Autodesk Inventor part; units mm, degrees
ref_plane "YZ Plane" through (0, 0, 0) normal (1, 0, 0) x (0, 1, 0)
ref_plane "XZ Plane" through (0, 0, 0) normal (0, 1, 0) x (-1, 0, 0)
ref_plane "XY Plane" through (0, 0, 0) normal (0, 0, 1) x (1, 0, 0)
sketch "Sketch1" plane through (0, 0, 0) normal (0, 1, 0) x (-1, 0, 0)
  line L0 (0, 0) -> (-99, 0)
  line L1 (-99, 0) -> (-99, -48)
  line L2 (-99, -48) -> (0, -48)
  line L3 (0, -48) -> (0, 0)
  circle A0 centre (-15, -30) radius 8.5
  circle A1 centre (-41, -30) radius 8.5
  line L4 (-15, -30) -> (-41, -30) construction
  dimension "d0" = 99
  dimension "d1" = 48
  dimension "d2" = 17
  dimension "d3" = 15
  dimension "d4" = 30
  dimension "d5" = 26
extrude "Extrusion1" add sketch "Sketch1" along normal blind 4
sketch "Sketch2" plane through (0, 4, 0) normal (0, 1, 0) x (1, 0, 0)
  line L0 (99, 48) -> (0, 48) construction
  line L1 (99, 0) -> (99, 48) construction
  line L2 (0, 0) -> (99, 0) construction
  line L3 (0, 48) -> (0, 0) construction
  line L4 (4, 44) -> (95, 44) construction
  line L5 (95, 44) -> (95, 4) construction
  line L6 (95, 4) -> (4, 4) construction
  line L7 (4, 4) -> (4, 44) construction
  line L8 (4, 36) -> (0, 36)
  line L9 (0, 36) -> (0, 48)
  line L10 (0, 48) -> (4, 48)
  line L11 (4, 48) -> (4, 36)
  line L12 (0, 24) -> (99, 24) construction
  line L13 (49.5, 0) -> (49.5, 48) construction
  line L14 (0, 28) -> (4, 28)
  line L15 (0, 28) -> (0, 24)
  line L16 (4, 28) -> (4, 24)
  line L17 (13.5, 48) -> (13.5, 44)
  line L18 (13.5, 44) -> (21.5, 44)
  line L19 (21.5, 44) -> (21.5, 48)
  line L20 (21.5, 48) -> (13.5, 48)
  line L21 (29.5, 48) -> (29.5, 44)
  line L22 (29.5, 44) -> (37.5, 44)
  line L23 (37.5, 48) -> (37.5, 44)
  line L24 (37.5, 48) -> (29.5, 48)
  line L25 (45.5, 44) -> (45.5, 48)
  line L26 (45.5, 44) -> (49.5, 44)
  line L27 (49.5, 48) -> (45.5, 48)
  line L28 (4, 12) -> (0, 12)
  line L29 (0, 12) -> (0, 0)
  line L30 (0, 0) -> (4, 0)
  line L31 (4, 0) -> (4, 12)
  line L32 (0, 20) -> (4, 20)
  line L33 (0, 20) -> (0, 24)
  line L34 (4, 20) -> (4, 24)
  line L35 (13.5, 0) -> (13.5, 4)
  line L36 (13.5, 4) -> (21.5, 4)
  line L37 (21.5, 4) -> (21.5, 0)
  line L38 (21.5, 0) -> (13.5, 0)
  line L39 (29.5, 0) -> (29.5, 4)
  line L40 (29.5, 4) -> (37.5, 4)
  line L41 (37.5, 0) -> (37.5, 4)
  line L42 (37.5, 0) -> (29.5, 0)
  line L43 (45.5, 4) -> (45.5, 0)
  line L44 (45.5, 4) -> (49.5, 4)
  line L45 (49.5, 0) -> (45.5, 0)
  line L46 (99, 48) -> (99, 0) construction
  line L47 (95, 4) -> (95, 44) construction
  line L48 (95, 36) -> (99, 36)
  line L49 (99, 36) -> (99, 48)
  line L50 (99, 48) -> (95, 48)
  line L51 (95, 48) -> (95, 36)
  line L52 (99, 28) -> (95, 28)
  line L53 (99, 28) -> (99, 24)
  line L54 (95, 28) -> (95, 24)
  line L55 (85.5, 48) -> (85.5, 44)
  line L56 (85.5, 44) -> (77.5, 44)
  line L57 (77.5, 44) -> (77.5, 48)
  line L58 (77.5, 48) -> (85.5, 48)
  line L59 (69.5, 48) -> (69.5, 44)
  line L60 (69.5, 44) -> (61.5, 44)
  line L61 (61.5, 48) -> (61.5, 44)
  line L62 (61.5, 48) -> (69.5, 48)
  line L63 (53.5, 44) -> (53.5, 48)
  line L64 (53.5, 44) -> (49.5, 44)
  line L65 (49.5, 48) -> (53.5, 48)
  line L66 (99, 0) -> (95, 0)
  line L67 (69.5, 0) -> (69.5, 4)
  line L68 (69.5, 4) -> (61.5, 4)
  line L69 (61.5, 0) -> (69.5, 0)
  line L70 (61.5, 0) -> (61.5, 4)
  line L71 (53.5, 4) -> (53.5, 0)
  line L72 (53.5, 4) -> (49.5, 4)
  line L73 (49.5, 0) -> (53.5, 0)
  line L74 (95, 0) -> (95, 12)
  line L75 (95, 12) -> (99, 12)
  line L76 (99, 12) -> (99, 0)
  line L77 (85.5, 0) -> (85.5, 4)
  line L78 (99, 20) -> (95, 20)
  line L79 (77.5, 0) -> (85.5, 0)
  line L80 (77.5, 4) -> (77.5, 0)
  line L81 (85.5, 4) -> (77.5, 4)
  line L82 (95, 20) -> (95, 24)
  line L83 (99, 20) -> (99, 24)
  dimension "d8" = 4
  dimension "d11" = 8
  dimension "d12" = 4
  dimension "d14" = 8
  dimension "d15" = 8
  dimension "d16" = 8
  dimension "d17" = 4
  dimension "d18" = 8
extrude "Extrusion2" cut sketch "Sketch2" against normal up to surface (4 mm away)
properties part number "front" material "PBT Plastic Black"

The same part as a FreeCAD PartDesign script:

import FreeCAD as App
import Part
import Sketcher
Q = App.Units.Quantity

doc = App.newDocument("Part")
params = doc.addObject("Spreadsheet::Sheet", "Params")
for row, (alias, value) in enumerate([
    ("sketch1_diameter", "17 mm"),
    ("sketch1_width", "99 mm"),
    ("sketch1_height", "48 mm"),
    ("pad1_length", "4 mm"),
    ("sketch2_width", "4 mm"),
    ("sketch2_width2", "8 mm"),
    ("sketch2_height", "12 mm"),
    ("pocket1_length", "4 mm"),
], start=1):
    params.set(f"A{row}", alias)
    params.set(f"B{row}", "=" + value)
    params.setAlias(f"B{row}", alias)

body = doc.addObject("PartDesign::Body", "Body")

# Sketch on XZ plane
sketch1 = body.newObject("Sketcher::SketchObject", "Sketch")
sketch1.AttachmentSupport = (doc.getObject("XZ_Plane"), [""])
sketch1.MapMode = "FlatFace"
sketch1.addGeometry([
    Part.LineSegment(App.Vector(0, -48, 0), App.Vector(0, 0, 0)),  # 0
    Part.LineSegment(App.Vector(0, 0, 0), App.Vector(99, 0, 0)),  # 1
    Part.LineSegment(App.Vector(99, 0, 0), App.Vector(99, -48, 0)),  # 2
    Part.LineSegment(App.Vector(99, -48, 0), App.Vector(0, -48, 0)),  # 3
    Part.Circle(App.Vector(41, -30, 0), App.Vector(0, 0, 1), 8),  # 4
    Part.Circle(App.Vector(15, -30, 0), App.Vector(0, 0, 1), 8),  # 5
], False)
sketch1.addConstraint([
    Sketcher.Constraint("Coincident", 0, 2, 1, 1),
    Sketcher.Constraint("Coincident", 1, 2, 2, 1),
    Sketcher.Constraint("Coincident", 2, 2, 3, 1),
    Sketcher.Constraint("Coincident", 3, 2, 0, 1),
    Sketcher.Constraint("Vertical", 0),
    Sketcher.Constraint("Horizontal", 1),
    Sketcher.Constraint("Vertical", 2),
    Sketcher.Constraint("Horizontal", 3),
    Sketcher.Constraint("Coincident", 0, 2, -1, 1),
    Sketcher.Constraint("Equal", 4, 5),
    Sketcher.Constraint("Horizontal", 4, 3, 5, 3),
    Sketcher.Constraint("Diameter", 4, Q("17 mm")),
    Sketcher.Constraint("DistanceX", 1, 1, 1, 2, Q("99 mm")),
    Sketcher.Constraint("DistanceY", 0, 1, 0, 2, Q("48 mm")),
    Sketcher.Constraint("DistanceY", 4, 3, -1, 1, Q("30 mm")),
    Sketcher.Constraint("DistanceX", -1, 1, 5, 3, Q("15 mm")),
    Sketcher.Constraint("DistanceX", 5, 3, 4, 3, Q("26 mm")),
])
sketch1.setExpression("Constraints[11]", "Params.sketch1_diameter")
sketch1.setExpression("Constraints[12]", "Params.sketch1_width")
sketch1.setExpression("Constraints[13]", "Params.sketch1_height")
pad1 = body.newObject("PartDesign::Pad", "Pad")
pad1.Profile = sketch1
pad1.setExpression("Length", "Params.pad1_length")
pad1.Reversed = True

# Sketch on XZ plane
sketch2 = body.newObject("Sketcher::SketchObject", "Sketch001")
sketch2.AttachmentSupport = (doc.getObject("XZ_Plane"), [""])
sketch2.MapMode = "FlatFace"
sketch2.AttachmentOffset = App.Placement(App.Vector(0, 0, -4), App.Rotation())
sketch2.addGeometry([
    Part.LineSegment(App.Vector(0, -36, 0), App.Vector(4, -36, 0)),  # 0
    Part.LineSegment(App.Vector(4, -36, 0), App.Vector(4, -48, 0)),  # 1
    Part.LineSegment(App.Vector(4, -48, 0), App.Vector(0, -48, 0)),  # 2
    Part.LineSegment(App.Vector(0, -48, 0), App.Vector(0, -36, 0)),  # 3
    Part.LineSegment(App.Vector(4, -28, 0), App.Vector(0, -28, 0)),  # 4
    Part.LineSegment(App.Vector(0, -28, 0), App.Vector(0, -20, 0)),  # 5
    Part.LineSegment(App.Vector(0, -20, 0), App.Vector(4, -20, 0)),  # 6
    Part.LineSegment(App.Vector(4, -20, 0), App.Vector(4, -28, 0)),  # 7
    Part.LineSegment(App.Vector(21.5, -48, 0), App.Vector(13.5, -48, 0)),  # 8
    Part.LineSegment(App.Vector(13.5, -48, 0), App.Vector(13.5, -44, 0)),  # 9
    Part.LineSegment(App.Vector(13.5, -44, 0), App.Vector(21.5, -44, 0)),  # 10
    Part.LineSegment(App.Vector(21.5, -44, 0), App.Vector(21.5, -48, 0)),  # 11
    Part.LineSegment(App.Vector(37.5, -48, 0), App.Vector(29.5, -48, 0)),  # 12
    Part.LineSegment(App.Vector(29.5, -48, 0), App.Vector(29.5, -44, 0)),  # 13
    Part.LineSegment(App.Vector(29.5, -44, 0), App.Vector(37.5, -44, 0)),  # 14
    Part.LineSegment(App.Vector(37.5, -44, 0), App.Vector(37.5, -48, 0)),  # 15
    Part.LineSegment(App.Vector(45.5, -48, 0), App.Vector(45.5, -44, 0)),  # 16
    Part.LineSegment(App.Vector(45.5, -44, 0), App.Vector(53.5, -44, 0)),  # 17
    Part.LineSegment(App.Vector(53.5, -44, 0), App.Vector(53.5, -48, 0)),  # 18
    Part.LineSegment(App.Vector(53.5, -48, 0), App.Vector(45.5, -48, 0)),  # 19
    Part.LineSegment(App.Vector(4, 0, 0), App.Vector(4, -12, 0)),  # 20
    Part.LineSegment(App.Vector(4, -12, 0), App.Vector(0, -12, 0)),  # 21
    Part.LineSegment(App.Vector(0, -12, 0), App.Vector(0, 0, 0)),  # 22
    Part.LineSegment(App.Vector(0, 0, 0), App.Vector(4, 0, 0)),  # 23
    Part.LineSegment(App.Vector(13.5, -4, 0), App.Vector(13.5, 0, 0)),  # 24
    Part.LineSegment(App.Vector(13.5, 0, 0), App.Vector(21.5, 0, 0)),  # 25
    Part.LineSegment(App.Vector(21.5, 0, 0), App.Vector(21.5, -4, 0)),  # 26
    Part.LineSegment(App.Vector(21.5, -4, 0), App.Vector(13.5, -4, 0)),  # 27
    Part.LineSegment(App.Vector(29.5, -4, 0), App.Vector(29.5, 0, 0)),  # 28
    Part.LineSegment(App.Vector(29.5, 0, 0), App.Vector(37.5, 0, 0)),  # 29
    Part.LineSegment(App.Vector(37.5, 0, 0), App.Vector(37.5, -4, 0)),  # 30
    Part.LineSegment(App.Vector(37.5, -4, 0), App.Vector(29.5, -4, 0)),  # 31
    Part.LineSegment(App.Vector(53.5, -4, 0), App.Vector(45.5, -4, 0)),  # 32
    Part.LineSegment(App.Vector(45.5, -4, 0), App.Vector(45.5, 0, 0)),  # 33
    Part.LineSegment(App.Vector(45.5, 0, 0), App.Vector(53.5, 0, 0)),  # 34
    Part.LineSegment(App.Vector(53.5, 0, 0), App.Vector(53.5, -4, 0)),  # 35
    Part.LineSegment(App.Vector(95, -48, 0), App.Vector(95, -36, 0)),  # 36
    Part.LineSegment(App.Vector(95, -36, 0), App.Vector(99, -36, 0)),  # 37
    Part.LineSegment(App.Vector(99, -36, 0), App.Vector(99, -48, 0)),  # 38
    Part.LineSegment(App.Vector(99, -48, 0), App.Vector(95, -48, 0)),  # 39
    Part.LineSegment(App.Vector(99, -20, 0), App.Vector(99, -28, 0)),  # 40
    Part.LineSegment(App.Vector(99, -28, 0), App.Vector(95, -28, 0)),  # 41
    Part.LineSegment(App.Vector(95, -28, 0), App.Vector(95, -20, 0)),  # 42
    Part.LineSegment(App.Vector(95, -20, 0), App.Vector(99, -20, 0)),  # 43
    Part.LineSegment(App.Vector(85.5, -44, 0), App.Vector(85.5, -48, 0)),  # 44
    Part.LineSegment(App.Vector(85.5, -48, 0), App.Vector(77.5, -48, 0)),  # 45
    Part.LineSegment(App.Vector(77.5, -48, 0), App.Vector(77.5, -44, 0)),  # 46
    Part.LineSegment(App.Vector(77.5, -44, 0), App.Vector(85.5, -44, 0)),  # 47
    Part.LineSegment(App.Vector(69.5, -44, 0), App.Vector(69.5, -48, 0)),  # 48
    Part.LineSegment(App.Vector(69.5, -48, 0), App.Vector(61.5, -48, 0)),  # 49
    Part.LineSegment(App.Vector(61.5, -48, 0), App.Vector(61.5, -44, 0)),  # 50
    Part.LineSegment(App.Vector(61.5, -44, 0), App.Vector(69.5, -44, 0)),  # 51
    Part.LineSegment(App.Vector(95, 0, 0), App.Vector(99, 0, 0)),  # 52
    Part.LineSegment(App.Vector(99, 0, 0), App.Vector(99, -12, 0)),  # 53
    Part.LineSegment(App.Vector(99, -12, 0), App.Vector(95, -12, 0)),  # 54
    Part.LineSegment(App.Vector(95, -12, 0), App.Vector(95, 0, 0)),  # 55
    Part.LineSegment(App.Vector(61.5, 0, 0), App.Vector(69.5, 0, 0)),  # 56
    Part.LineSegment(App.Vector(69.5, 0, 0), App.Vector(69.5, -4, 0)),  # 57
    Part.LineSegment(App.Vector(69.5, -4, 0), App.Vector(61.5, -4, 0)),  # 58
    Part.LineSegment(App.Vector(61.5, -4, 0), App.Vector(61.5, 0, 0)),  # 59
    Part.LineSegment(App.Vector(77.5, 0, 0), App.Vector(85.5, 0, 0)),  # 60
    Part.LineSegment(App.Vector(85.5, 0, 0), App.Vector(85.5, -4, 0)),  # 61
    Part.LineSegment(App.Vector(85.5, -4, 0), App.Vector(77.5, -4, 0)),  # 62
    Part.LineSegment(App.Vector(77.5, -4, 0), App.Vector(77.5, 0, 0)),  # 63
], False)
sketch2.addConstraint([
    Sketcher.Constraint("Coincident", 0, 2, 1, 1),
    Sketcher.Constraint("Coincident", 1, 2, 2, 1),
    Sketcher.Constraint("Coincident", 2, 2, 3, 1),
    Sketcher.Constraint("Coincident", 3, 2, 0, 1),
    Sketcher.Constraint("Coincident", 4, 2, 5, 1),
    Sketcher.Constraint("Coincident", 5, 2, 6, 1),
    Sketcher.Constraint("Coincident", 6, 2, 7, 1),
    Sketcher.Constraint("Coincident", 7, 2, 4, 1),
    Sketcher.Constraint("Coincident", 8, 2, 9, 1),
    Sketcher.Constraint("Coincident", 9, 2, 10, 1),
    Sketcher.Constraint("Coincident", 10, 2, 11, 1),
    Sketcher.Constraint("Coincident", 11, 2, 8, 1),
    Sketcher.Constraint("Coincident", 12, 2, 13, 1),
    Sketcher.Constraint("Coincident", 13, 2, 14, 1),
    Sketcher.Constraint("Coincident", 14, 2, 15, 1),
    Sketcher.Constraint("Coincident", 15, 2, 12, 1),
    Sketcher.Constraint("Coincident", 16, 2, 17, 1),
    Sketcher.Constraint("Coincident", 17, 2, 18, 1),
    Sketcher.Constraint("Coincident", 18, 2, 19, 1),
    Sketcher.Constraint("Coincident", 19, 2, 16, 1),
    Sketcher.Constraint("Coincident", 20, 2, 21, 1),
    Sketcher.Constraint("Coincident", 21, 2, 22, 1),
    Sketcher.Constraint("Coincident", 22, 2, 23, 1),
    Sketcher.Constraint("Coincident", 23, 2, 20, 1),
    Sketcher.Constraint("Coincident", 24, 2, 25, 1),
    Sketcher.Constraint("Coincident", 25, 2, 26, 1),
    Sketcher.Constraint("Coincident", 26, 2, 27, 1),
    Sketcher.Constraint("Coincident", 27, 2, 24, 1),
    Sketcher.Constraint("Coincident", 28, 2, 29, 1),
    Sketcher.Constraint("Coincident", 29, 2, 30, 1),
    Sketcher.Constraint("Coincident", 30, 2, 31, 1),
    Sketcher.Constraint("Coincident", 31, 2, 28, 1),
    Sketcher.Constraint("Coincident", 32, 2, 33, 1),
    Sketcher.Constraint("Coincident", 33, 2, 34, 1),
    Sketcher.Constraint("Coincident", 34, 2, 35, 1),
    Sketcher.Constraint("Coincident", 35, 2, 32, 1),
    Sketcher.Constraint("Coincident", 36, 2, 37, 1),
    Sketcher.Constraint("Coincident", 37, 2, 38, 1),
    Sketcher.Constraint("Coincident", 38, 2, 39, 1),
    Sketcher.Constraint("Coincident", 39, 2, 36, 1),
    Sketcher.Constraint("Coincident", 40, 2, 41, 1),
    Sketcher.Constraint("Coincident", 41, 2, 42, 1),
    Sketcher.Constraint("Coincident", 42, 2, 43, 1),
    Sketcher.Constraint("Coincident", 43, 2, 40, 1),
    Sketcher.Constraint("Coincident", 44, 2, 45, 1),
    Sketcher.Constraint("Coincident", 45, 2, 46, 1),
    Sketcher.Constraint("Coincident", 46, 2, 47, 1),
    Sketcher.Constraint("Coincident", 47, 2, 44, 1),
    Sketcher.Constraint("Coincident", 48, 2, 49, 1),
    Sketcher.Constraint("Coincident", 49, 2, 50, 1),
    Sketcher.Constraint("Coincident", 50, 2, 51, 1),
    Sketcher.Constraint("Coincident", 51, 2, 48, 1),
    Sketcher.Constraint("Coincident", 52, 2, 53, 1),
    Sketcher.Constraint("Coincident", 53, 2, 54, 1),
    Sketcher.Constraint("Coincident", 54, 2, 55, 1),
    Sketcher.Constraint("Coincident", 55, 2, 52, 1),
    Sketcher.Constraint("Coincident", 56, 2, 57, 1),
    Sketcher.Constraint("Coincident", 57, 2, 58, 1),
    Sketcher.Constraint("Coincident", 58, 2, 59, 1),
    Sketcher.Constraint("Coincident", 59, 2, 56, 1),
    Sketcher.Constraint("Coincident", 60, 2, 61, 1),
    Sketcher.Constraint("Coincident", 61, 2, 62, 1),
    Sketcher.Constraint("Coincident", 62, 2, 63, 1),
    Sketcher.Constraint("Coincident", 63, 2, 60, 1),
    Sketcher.Constraint("Horizontal", 0),
    Sketcher.Constraint("Vertical", 1),
    Sketcher.Constraint("Horizontal", 2),
    Sketcher.Constraint("Vertical", 3),
    Sketcher.Constraint("Horizontal", 4),
    Sketcher.Constraint("Vertical", 5),
    Sketcher.Constraint("Horizontal", 6),
    Sketcher.Constraint("Vertical", 7),
    Sketcher.Constraint("Horizontal", 8),
    Sketcher.Constraint("Vertical", 9),
    Sketcher.Constraint("Horizontal", 10),
    Sketcher.Constraint("Vertical", 11),
    Sketcher.Constraint("Horizontal", 12),
    Sketcher.Constraint("Vertical", 13),
    Sketcher.Constraint("Horizontal", 14),
    Sketcher.Constraint("Vertical", 15),
    Sketcher.Constraint("Vertical", 16),
    Sketcher.Constraint("Horizontal", 17),
    Sketcher.Constraint("Vertical", 18),
    Sketcher.Constraint("Horizontal", 19),
    Sketcher.Constraint("Vertical", 20),
    Sketcher.Constraint("Horizontal", 21),
    Sketcher.Constraint("Vertical", 22),
    Sketcher.Constraint("Horizontal", 23),
    Sketcher.Constraint("Vertical", 24),
    Sketcher.Constraint("Horizontal", 25),
    Sketcher.Constraint("Vertical", 26),
    Sketcher.Constraint("Horizontal", 27),
    Sketcher.Constraint("Vertical", 28),
    Sketcher.Constraint("Horizontal", 29),
    Sketcher.Constraint("Vertical", 30),
    Sketcher.Constraint("Horizontal", 31),
    Sketcher.Constraint("Horizontal", 32),
    Sketcher.Constraint("Vertical", 33),
    Sketcher.Constraint("Horizontal", 34),
    Sketcher.Constraint("Vertical", 35),
    Sketcher.Constraint("Vertical", 36),
    Sketcher.Constraint("Horizontal", 37),
    Sketcher.Constraint("Vertical", 38),
    Sketcher.Constraint("Horizontal", 39),
    Sketcher.Constraint("Vertical", 40),
    Sketcher.Constraint("Horizontal", 41),
    Sketcher.Constraint("Vertical", 42),
    Sketcher.Constraint("Horizontal", 43),
    Sketcher.Constraint("Vertical", 44),
    Sketcher.Constraint("Horizontal", 45),
    Sketcher.Constraint("Vertical", 46),
    Sketcher.Constraint("Horizontal", 47),
    Sketcher.Constraint("Vertical", 48),
    Sketcher.Constraint("Horizontal", 49),
    Sketcher.Constraint("Vertical", 50),
    Sketcher.Constraint("Horizontal", 51),
    Sketcher.Constraint("Horizontal", 52),
    Sketcher.Constraint("Vertical", 53),
    Sketcher.Constraint("Horizontal", 54),
    Sketcher.Constraint("Vertical", 55),
    Sketcher.Constraint("Horizontal", 56),
    Sketcher.Constraint("Vertical", 57),
    Sketcher.Constraint("Horizontal", 58),
    Sketcher.Constraint("Vertical", 59),
    Sketcher.Constraint("Horizontal", 60),
    Sketcher.Constraint("Vertical", 61),
    Sketcher.Constraint("Horizontal", 62),
    Sketcher.Constraint("Vertical", 63),
    Sketcher.Constraint("Coincident", 22, 2, -1, 1),
    Sketcher.Constraint("PointOnObject", 2, 2, -2),
    Sketcher.Constraint("PointOnObject", 4, 2, -2),
    Sketcher.Constraint("PointOnObject", 24, 2, -1),
    Sketcher.Constraint("PointOnObject", 28, 2, -1),
    Sketcher.Constraint("PointOnObject", 33, 2, -1),
    Sketcher.Constraint("PointOnObject", 52, 2, -1),
    Sketcher.Constraint("PointOnObject", 56, 2, -1),
    Sketcher.Constraint("PointOnObject", 60, 2, -1),
    Sketcher.Constraint("Horizontal", 2, 2, 8, 2),
    Sketcher.Constraint("Horizontal", 11, 2, 12, 2),
    Sketcher.Constraint("Horizontal", 10, 2, 13, 2),
    Sketcher.Constraint("Horizontal", 14, 2, 16, 2),
    Sketcher.Constraint("Horizontal", 15, 2, 18, 2),
    Sketcher.Constraint("Horizontal", 27, 2, 30, 2),
    Sketcher.Constraint("Horizontal", 31, 2, 32, 2),
    Sketcher.Constraint("Horizontal", 3, 2, 36, 2),
    Sketcher.Constraint("Horizontal", 19, 2, 38, 2),
    Sketcher.Constraint("Horizontal", 7, 2, 40, 2),
    Sketcher.Constraint("Horizontal", 6, 2, 42, 2),
    Sketcher.Constraint("Horizontal", 39, 2, 44, 2),
    Sketcher.Constraint("Horizontal", 17, 2, 46, 2),
    Sketcher.Constraint("Horizontal", 45, 2, 48, 2),
    Sketcher.Constraint("Horizontal", 47, 2, 50, 2),
    Sketcher.Constraint("Horizontal", 21, 2, 53, 2),
    Sketcher.Constraint("Horizontal", 35, 2, 57, 2),
    Sketcher.Constraint("Horizontal", 58, 2, 61, 2),
    Sketcher.Constraint("Vertical", 1, 2, 6, 2),
    Sketcher.Constraint("Vertical", 7, 2, 20, 2),
    Sketcher.Constraint("Vertical", 9, 2, 24, 2),
    Sketcher.Constraint("Vertical", 11, 2, 25, 2),
    Sketcher.Constraint("Vertical", 13, 2, 28, 2),
    Sketcher.Constraint("Vertical", 15, 2, 29, 2),
    Sketcher.Constraint("Vertical", 19, 2, 32, 2),
    Sketcher.Constraint("Vertical", 18, 2, 34, 2),
    Sketcher.Constraint("Vertical", 38, 2, 40, 2),
    Sketcher.Constraint("Vertical", 39, 2, 41, 2),
    Sketcher.Constraint("Vertical", 43, 2, 52, 2),
    Sketcher.Constraint("Vertical", 42, 2, 54, 2),
    Sketcher.Constraint("Vertical", 51, 2, 56, 2),
    Sketcher.Constraint("Vertical", 50, 2, 58, 2),
    Sketcher.Constraint("Vertical", 47, 2, 60, 2),
    Sketcher.Constraint("Vertical", 46, 2, 62, 2),
    Sketcher.Constraint("Equal", 10, 12),
    Sketcher.Constraint("Equal", 14, 17),
    Sketcher.Constraint("Equal", 23, 37),
    Sketcher.Constraint("Equal", 34, 45),
    Sketcher.Constraint("Equal", 47, 49),
    Sketcher.Constraint("Equal", 62, 5),
    Sketcher.Constraint("Equal", 54, 9),
    Sketcher.Constraint("Equal", 3, 20),
    Sketcher.Constraint("Equal", 18, 24),
    Sketcher.Constraint("DistanceX", 0, 1, 0, 2, Q("4 mm")),
    Sketcher.Constraint("DistanceX", 8, 2, 8, 1, Q("8 mm")),
    Sketcher.Constraint("DistanceY", 1, 2, 1, 1, Q("12 mm")),
    Sketcher.Constraint("DistanceY", 0, 2, -1, 1, Q("36 mm")),
    Sketcher.Constraint("DistanceY", 4, 2, -1, 1, Q("28 mm")),
    Sketcher.Constraint("DistanceX", -1, 1, 36, 2, Q("95 mm")),
    Sketcher.Constraint("DistanceX", -1, 1, 8, 2, Q("13.5 mm")),
    Sketcher.Constraint("DistanceX", -1, 1, 12, 2, Q("29.5 mm")),
    Sketcher.Constraint("DistanceX", -1, 1, 16, 2, Q("45.5 mm")),
    Sketcher.Constraint("DistanceX", -1, 1, 44, 2, Q("85.5 mm")),
    Sketcher.Constraint("DistanceX", -1, 1, 48, 2, Q("69.5 mm")),
])
sketch2.setExpression("Constraints[180]", "Params.sketch2_width")
sketch2.setExpression("Constraints[181]", "Params.sketch2_width2")
sketch2.setExpression("Constraints[182]", "Params.sketch2_height")
pocket1 = body.newObject("PartDesign::Pocket", "Pocket")
pocket1.Profile = sketch2
pocket1.setExpression("Length", "Params.pocket1_length")
pocket1.Reversed = True

doc.recompute()
